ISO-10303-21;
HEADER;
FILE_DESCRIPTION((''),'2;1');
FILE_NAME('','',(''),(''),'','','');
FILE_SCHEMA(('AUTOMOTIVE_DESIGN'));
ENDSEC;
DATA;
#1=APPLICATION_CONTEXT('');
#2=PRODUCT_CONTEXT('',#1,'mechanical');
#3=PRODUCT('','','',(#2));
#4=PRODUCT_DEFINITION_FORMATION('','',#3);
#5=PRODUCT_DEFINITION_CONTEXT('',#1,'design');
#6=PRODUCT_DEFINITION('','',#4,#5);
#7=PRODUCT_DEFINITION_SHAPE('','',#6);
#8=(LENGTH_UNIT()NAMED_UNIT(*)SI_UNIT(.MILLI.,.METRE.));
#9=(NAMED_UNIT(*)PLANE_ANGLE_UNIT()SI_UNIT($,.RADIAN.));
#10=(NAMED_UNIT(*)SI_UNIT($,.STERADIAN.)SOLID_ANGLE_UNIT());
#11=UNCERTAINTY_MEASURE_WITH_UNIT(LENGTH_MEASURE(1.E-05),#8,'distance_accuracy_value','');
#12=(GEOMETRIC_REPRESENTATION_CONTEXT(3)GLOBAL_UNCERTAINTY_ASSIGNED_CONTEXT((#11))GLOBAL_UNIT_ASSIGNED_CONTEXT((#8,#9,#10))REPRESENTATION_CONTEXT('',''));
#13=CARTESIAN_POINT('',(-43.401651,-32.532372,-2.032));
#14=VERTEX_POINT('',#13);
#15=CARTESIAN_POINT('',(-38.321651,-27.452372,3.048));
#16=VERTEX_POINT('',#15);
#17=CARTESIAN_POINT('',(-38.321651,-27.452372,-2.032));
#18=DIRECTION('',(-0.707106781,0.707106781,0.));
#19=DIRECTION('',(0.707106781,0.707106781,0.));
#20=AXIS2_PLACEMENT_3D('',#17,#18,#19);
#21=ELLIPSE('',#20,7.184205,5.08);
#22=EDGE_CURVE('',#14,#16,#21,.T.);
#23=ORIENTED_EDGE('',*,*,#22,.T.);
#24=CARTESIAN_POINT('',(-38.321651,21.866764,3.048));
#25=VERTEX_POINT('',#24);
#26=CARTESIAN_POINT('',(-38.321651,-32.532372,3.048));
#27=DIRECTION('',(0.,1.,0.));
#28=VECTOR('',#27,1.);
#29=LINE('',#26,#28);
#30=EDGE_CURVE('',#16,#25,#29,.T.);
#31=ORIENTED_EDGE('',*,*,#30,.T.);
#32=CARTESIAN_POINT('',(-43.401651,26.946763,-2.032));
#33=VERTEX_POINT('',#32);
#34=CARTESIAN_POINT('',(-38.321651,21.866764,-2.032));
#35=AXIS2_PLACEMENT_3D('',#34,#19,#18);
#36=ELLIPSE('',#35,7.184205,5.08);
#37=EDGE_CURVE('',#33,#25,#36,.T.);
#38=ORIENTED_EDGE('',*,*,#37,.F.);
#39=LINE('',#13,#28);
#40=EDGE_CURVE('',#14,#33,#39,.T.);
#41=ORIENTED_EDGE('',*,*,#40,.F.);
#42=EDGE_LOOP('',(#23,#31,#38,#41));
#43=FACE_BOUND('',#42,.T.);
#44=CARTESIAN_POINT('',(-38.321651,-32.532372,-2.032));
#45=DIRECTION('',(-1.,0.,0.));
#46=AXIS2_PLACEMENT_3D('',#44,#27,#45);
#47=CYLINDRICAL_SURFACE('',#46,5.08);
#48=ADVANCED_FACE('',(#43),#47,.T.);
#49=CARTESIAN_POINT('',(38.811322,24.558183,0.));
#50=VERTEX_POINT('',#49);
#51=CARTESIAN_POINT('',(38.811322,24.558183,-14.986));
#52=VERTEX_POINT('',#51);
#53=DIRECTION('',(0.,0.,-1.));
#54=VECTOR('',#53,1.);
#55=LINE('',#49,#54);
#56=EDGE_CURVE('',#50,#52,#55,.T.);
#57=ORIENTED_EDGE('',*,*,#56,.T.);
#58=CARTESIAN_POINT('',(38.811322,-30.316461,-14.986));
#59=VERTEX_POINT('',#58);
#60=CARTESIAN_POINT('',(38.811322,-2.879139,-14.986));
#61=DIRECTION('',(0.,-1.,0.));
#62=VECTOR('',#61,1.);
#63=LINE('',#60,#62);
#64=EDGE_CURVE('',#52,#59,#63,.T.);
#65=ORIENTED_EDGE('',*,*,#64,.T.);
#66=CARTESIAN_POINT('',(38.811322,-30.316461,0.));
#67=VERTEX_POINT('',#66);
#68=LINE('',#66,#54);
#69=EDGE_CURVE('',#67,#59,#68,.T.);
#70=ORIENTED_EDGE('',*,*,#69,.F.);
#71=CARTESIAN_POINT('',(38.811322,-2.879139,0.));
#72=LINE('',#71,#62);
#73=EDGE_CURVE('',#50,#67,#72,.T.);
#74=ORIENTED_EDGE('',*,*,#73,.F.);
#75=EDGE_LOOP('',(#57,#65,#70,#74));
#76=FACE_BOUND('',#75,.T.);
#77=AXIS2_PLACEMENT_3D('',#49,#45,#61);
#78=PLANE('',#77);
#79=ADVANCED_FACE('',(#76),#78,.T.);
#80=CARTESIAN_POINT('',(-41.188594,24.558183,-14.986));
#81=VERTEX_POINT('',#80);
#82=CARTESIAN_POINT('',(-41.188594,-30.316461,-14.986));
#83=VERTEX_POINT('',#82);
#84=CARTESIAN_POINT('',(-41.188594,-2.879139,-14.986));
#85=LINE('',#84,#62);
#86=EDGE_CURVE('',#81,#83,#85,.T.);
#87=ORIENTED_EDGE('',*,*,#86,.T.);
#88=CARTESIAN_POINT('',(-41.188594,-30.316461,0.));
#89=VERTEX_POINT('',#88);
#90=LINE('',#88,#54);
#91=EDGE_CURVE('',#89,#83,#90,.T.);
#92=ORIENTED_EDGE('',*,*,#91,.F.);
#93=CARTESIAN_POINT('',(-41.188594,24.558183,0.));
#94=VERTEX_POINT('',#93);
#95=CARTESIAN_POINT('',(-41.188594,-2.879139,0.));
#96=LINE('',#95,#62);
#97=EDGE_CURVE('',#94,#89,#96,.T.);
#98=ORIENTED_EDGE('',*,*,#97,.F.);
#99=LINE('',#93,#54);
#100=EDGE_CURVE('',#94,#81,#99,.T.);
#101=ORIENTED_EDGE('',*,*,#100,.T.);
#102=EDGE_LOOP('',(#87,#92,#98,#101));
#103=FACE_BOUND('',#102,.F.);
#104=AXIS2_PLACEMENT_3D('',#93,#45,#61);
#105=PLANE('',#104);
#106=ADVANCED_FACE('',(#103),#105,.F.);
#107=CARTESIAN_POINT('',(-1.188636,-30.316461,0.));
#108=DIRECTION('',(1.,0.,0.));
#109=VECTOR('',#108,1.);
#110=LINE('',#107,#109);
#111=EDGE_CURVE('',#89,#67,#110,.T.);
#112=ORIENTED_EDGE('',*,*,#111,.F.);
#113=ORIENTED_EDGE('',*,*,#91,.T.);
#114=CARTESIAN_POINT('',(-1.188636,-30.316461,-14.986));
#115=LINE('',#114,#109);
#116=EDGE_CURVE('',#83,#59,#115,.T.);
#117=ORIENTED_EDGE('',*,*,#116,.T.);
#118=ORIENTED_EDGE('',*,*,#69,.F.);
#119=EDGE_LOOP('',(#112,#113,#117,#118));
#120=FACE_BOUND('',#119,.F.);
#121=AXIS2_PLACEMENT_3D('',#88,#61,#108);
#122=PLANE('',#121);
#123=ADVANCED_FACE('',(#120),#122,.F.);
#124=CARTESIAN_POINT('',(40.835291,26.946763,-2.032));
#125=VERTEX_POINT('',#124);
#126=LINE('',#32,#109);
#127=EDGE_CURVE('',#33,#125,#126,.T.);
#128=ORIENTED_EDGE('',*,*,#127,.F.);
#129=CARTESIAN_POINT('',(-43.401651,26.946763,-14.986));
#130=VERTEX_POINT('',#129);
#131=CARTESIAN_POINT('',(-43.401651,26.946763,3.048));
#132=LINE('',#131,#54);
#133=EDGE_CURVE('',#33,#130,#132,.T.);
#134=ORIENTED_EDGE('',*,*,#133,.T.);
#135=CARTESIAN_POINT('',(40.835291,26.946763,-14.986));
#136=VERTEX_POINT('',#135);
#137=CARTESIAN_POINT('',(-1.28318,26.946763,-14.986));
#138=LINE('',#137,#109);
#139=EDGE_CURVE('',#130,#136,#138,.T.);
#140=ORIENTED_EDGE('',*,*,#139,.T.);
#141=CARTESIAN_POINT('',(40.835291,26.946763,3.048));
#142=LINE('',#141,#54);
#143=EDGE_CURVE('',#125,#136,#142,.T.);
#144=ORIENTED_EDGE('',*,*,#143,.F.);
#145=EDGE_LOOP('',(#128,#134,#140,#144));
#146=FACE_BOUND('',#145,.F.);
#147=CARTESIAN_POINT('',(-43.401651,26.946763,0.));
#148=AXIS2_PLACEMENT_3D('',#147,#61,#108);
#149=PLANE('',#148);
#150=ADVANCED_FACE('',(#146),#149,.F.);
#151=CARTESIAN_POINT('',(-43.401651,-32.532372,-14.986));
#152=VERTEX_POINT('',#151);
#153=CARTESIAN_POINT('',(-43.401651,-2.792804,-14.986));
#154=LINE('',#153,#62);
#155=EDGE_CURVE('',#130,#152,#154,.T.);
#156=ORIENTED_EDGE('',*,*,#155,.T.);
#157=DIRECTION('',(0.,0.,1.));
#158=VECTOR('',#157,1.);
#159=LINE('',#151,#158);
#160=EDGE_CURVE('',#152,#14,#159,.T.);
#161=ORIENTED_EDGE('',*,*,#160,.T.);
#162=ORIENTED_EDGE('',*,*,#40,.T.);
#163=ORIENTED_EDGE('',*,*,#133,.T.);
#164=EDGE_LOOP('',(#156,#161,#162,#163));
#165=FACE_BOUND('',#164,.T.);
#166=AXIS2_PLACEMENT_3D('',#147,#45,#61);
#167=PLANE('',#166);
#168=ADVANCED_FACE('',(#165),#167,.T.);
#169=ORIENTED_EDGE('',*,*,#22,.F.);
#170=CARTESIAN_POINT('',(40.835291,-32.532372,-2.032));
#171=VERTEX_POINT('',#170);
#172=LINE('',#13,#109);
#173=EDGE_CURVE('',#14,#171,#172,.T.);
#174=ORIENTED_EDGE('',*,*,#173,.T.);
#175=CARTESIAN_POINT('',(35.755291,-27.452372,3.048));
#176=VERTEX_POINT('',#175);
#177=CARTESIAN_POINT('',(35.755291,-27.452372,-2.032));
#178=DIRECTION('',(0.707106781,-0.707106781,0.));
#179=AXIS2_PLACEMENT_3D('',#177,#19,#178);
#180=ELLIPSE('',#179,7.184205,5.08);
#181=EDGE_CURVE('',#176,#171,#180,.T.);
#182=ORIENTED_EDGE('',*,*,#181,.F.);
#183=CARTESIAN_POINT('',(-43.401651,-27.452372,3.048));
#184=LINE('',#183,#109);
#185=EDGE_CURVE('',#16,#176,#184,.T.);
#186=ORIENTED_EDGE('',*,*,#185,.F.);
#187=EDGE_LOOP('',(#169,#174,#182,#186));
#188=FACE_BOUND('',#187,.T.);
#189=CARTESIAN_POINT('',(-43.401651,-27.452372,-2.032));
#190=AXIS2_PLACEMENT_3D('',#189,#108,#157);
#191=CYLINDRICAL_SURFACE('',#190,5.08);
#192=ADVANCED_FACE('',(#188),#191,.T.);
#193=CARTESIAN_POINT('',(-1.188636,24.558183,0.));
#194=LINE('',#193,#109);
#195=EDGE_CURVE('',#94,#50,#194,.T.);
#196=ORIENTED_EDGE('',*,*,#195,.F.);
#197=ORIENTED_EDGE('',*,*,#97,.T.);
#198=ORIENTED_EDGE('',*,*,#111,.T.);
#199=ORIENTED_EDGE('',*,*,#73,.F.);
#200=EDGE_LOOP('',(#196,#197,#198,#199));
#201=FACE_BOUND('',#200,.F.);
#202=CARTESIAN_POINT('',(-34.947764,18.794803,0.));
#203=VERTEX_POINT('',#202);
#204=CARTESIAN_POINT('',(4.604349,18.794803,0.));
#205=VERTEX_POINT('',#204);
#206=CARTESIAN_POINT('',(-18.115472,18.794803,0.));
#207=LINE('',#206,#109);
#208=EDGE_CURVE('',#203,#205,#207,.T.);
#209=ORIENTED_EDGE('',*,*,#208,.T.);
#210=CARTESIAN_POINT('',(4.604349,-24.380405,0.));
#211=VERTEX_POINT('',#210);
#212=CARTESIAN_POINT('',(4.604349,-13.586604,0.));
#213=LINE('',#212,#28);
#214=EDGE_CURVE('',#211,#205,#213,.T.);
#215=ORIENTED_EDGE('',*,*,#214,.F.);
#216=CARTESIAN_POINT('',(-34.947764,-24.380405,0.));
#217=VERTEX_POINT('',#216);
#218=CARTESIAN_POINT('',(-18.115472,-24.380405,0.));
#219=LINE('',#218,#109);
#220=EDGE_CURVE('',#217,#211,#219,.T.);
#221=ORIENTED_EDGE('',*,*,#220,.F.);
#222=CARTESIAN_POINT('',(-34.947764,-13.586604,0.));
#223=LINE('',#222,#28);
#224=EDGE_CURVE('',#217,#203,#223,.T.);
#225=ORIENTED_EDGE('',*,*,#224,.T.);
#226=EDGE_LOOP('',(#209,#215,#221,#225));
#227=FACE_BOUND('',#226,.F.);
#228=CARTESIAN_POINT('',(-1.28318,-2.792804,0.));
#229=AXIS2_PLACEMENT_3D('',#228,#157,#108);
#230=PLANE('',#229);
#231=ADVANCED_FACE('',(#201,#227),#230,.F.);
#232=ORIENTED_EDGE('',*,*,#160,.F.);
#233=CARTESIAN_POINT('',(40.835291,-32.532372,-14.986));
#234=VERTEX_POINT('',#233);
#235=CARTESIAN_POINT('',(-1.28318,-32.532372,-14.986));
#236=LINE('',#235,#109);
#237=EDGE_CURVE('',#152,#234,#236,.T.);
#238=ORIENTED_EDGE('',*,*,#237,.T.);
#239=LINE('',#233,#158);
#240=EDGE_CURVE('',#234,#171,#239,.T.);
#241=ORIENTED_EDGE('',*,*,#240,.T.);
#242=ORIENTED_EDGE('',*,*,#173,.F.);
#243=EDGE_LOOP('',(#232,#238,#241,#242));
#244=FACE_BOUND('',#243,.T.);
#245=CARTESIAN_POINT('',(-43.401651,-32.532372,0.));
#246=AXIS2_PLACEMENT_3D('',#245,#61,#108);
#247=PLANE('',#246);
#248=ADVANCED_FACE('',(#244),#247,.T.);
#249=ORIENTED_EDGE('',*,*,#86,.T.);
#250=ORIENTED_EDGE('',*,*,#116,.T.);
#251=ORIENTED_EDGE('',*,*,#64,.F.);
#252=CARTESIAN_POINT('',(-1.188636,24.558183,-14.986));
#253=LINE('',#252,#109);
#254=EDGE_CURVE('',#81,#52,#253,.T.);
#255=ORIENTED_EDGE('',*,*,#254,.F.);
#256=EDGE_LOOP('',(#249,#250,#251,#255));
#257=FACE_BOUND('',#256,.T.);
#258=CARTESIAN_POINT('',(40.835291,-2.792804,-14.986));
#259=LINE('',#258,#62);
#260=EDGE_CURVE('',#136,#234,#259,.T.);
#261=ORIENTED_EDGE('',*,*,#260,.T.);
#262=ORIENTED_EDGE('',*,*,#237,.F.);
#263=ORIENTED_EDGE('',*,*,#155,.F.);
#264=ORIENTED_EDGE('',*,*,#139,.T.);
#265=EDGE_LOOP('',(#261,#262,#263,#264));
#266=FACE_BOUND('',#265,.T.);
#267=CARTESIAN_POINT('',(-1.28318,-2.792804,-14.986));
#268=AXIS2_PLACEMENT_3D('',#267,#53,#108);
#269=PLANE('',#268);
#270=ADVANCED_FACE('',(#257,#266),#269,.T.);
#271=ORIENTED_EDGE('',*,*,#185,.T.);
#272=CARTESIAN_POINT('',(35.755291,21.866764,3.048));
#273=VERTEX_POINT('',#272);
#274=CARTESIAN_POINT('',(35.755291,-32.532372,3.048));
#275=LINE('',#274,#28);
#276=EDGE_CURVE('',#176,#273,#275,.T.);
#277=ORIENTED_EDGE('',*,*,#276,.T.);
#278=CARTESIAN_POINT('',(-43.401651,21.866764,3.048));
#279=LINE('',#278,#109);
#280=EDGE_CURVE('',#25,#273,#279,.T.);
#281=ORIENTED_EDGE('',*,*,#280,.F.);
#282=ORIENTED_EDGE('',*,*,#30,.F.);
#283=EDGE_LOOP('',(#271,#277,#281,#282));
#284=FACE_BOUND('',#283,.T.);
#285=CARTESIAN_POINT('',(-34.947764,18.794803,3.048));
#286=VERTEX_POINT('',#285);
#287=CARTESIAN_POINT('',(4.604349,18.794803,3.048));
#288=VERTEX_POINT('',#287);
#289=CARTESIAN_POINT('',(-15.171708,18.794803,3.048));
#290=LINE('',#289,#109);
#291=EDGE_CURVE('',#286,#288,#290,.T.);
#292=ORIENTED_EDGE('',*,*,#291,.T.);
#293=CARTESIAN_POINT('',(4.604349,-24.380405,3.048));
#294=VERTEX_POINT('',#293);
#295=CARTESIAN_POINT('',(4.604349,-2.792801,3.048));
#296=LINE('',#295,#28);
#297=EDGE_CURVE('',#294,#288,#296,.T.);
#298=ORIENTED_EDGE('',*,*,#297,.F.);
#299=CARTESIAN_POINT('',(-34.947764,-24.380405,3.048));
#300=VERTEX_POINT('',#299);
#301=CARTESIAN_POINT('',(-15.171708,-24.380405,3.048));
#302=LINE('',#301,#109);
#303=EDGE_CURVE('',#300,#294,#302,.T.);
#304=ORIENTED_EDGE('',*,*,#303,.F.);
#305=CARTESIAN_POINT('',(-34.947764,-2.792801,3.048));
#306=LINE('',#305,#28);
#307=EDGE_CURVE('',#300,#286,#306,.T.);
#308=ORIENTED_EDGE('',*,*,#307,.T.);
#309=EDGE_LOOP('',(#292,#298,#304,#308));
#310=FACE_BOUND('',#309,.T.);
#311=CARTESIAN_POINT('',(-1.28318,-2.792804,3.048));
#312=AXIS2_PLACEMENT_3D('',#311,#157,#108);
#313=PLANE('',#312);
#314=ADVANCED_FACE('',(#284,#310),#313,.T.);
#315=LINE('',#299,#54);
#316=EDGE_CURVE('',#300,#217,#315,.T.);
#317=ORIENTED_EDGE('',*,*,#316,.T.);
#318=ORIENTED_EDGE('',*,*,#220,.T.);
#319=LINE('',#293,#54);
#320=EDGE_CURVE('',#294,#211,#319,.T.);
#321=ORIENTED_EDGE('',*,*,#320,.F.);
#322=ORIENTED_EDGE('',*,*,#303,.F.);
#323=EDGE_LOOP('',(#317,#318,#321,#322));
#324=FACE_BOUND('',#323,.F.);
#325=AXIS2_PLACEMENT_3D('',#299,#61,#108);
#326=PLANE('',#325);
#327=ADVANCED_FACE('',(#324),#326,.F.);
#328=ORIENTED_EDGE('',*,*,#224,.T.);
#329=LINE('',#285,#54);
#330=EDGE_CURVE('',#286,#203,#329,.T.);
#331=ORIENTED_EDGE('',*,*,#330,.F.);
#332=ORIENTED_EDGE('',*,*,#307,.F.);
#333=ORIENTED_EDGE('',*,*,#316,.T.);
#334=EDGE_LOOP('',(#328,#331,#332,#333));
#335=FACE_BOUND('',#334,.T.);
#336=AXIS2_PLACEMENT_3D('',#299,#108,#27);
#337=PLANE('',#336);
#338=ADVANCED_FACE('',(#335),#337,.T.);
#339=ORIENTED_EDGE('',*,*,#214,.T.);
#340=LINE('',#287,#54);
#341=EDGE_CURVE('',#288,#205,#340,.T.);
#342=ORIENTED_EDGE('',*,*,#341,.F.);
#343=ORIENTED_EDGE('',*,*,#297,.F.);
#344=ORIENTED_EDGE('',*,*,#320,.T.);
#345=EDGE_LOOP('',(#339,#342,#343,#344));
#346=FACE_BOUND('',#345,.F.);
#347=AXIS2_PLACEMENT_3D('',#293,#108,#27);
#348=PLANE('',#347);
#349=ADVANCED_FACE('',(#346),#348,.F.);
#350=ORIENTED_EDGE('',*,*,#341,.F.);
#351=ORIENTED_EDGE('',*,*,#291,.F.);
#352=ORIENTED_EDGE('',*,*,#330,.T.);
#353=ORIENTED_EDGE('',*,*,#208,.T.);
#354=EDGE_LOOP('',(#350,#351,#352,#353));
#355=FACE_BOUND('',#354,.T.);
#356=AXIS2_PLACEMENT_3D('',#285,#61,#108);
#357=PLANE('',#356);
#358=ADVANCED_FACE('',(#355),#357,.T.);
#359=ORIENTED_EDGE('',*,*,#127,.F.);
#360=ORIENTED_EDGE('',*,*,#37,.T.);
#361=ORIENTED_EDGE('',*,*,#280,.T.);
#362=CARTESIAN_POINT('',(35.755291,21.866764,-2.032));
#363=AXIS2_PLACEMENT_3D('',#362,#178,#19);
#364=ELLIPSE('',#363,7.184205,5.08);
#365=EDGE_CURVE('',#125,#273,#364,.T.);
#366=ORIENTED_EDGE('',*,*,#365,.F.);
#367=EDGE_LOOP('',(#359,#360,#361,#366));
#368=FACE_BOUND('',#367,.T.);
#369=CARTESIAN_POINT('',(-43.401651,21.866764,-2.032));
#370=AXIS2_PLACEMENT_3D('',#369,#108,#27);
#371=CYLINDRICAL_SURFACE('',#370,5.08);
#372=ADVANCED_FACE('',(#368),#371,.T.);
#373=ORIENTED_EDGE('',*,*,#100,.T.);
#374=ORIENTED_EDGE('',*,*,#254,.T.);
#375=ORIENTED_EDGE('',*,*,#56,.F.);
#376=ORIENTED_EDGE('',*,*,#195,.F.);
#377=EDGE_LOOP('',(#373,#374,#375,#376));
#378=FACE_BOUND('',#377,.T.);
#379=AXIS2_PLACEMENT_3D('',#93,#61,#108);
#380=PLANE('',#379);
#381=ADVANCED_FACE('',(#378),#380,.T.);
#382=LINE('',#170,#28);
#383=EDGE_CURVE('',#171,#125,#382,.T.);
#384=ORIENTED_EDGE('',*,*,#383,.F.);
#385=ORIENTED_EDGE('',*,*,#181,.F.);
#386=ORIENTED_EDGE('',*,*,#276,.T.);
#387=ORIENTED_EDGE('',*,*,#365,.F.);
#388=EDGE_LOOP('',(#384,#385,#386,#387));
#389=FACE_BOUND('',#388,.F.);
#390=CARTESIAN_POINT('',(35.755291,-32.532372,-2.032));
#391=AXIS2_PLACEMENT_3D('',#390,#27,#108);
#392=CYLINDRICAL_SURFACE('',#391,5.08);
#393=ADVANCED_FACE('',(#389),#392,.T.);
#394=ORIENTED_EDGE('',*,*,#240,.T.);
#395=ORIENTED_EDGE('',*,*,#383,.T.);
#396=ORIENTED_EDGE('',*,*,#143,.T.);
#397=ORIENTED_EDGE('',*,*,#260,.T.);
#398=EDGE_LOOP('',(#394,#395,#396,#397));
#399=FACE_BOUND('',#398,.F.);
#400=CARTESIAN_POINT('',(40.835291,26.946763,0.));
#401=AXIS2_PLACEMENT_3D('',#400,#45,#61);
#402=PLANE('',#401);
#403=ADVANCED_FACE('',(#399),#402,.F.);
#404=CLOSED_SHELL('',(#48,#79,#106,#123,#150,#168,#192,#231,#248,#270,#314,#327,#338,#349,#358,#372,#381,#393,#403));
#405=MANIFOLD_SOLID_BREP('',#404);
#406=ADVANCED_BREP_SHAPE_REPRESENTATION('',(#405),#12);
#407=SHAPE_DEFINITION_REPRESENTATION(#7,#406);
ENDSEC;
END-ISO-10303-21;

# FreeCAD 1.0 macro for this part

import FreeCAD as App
import Part
import Sketcher
from FreeCAD import Vector
Q = App.Units.Quantity


def edges_at(feature, points):
    """Names of the edges that pass closest to the given points."""
    edges = feature.Shape.Edges
    near = lambda p: min(range(len(edges)), key=lambda i: edges[i].distToShape(Part.Vertex(*p))[0])
    return sorted({f"Edge{near(p) + 1}" for p in points})


def add_polygon(sketch, points):
    """Adds a closed chain of lines whose ends are joined by coincident constraints."""
    first, n = sketch.GeometryCount, len(points)
    for a, b in zip(points, points[1:] + points[:1]):
        sketch.addGeometry(Part.LineSegment(App.Vector(*a, 0), App.Vector(*b, 0)), False)
    for i in range(n):
        sketch.addConstraint(Sketcher.Constraint("Coincident", first + i, 2, first + (i + 1) % n, 1))

doc = App.newDocument("Part")
body = doc.addObject("PartDesign::Body", "Body")

# Sketch on XY plane
sketch1 = body.newObject("Sketcher::SketchObject", "Sketch")
sketch1.AttachmentSupport = (doc.getObject("XY_Plane"), [""])
sketch1.MapMode = "FlatFace"
add_polygon(sketch1, [(-43, 27), (-43, -33), (41, -33), (41, 27)])  # lines 0-3
sketch1.addConstraint([
    Sketcher.Constraint("Vertical", 0),
    Sketcher.Constraint("Horizontal", 1),
    Sketcher.Constraint("Vertical", 2),
    Sketcher.Constraint("Horizontal", 3),
    Sketcher.Constraint("DistanceX", 1, 1, 1, 2, Q("84.236942 mm")),
    Sketcher.Constraint("DistanceY", 0, 2, 0, 1, Q("59.479135 mm")),
    Sketcher.Constraint("DistanceX", 0, 2, -1, 1, Q("43.401651 mm")),
    Sketcher.Constraint("DistanceY", 0, 2, -1, 1, Q("32.532372 mm")),
])
pad1 = body.newObject("PartDesign::Pad", "Pad")
pad1.Profile = sketch1
pad1.Length = Q("0.12 in")

# Sketch on XY plane
sketch2 = body.newObject("Sketcher::SketchObject", "Sketch001")
sketch2.AttachmentSupport = (doc.getObject("XY_Plane"), [""])
sketch2.MapMode = "FlatFace"
add_polygon(sketch2, [(-43, -33), (-43, 27), (41, 27), (41, -33)])  # lines 0-3
add_polygon(sketch2, [(39, 25), (-41, 25), (-41, -30), (39, -30)])  # lines 4-7
sketch2.addConstraint([
    Sketcher.Constraint("Vertical", 0),
    Sketcher.Constraint("Horizontal", 1),
    Sketcher.Constraint("Vertical", 2),
    Sketcher.Constraint("Horizontal", 3),
    Sketcher.Constraint("Horizontal", 4),
    Sketcher.Constraint("Vertical", 5),
    Sketcher.Constraint("Horizontal", 6),
    Sketcher.Constraint("Vertical", 7),
    Sketcher.Constraint("DistanceX", 1, 1, 1, 2, Q("84.236942 mm")),
    Sketcher.Constraint("DistanceX", 4, 2, 4, 1, Q("79.999916 mm")),
    Sketcher.Constraint("DistanceY", 0, 1, 0, 2, Q("59.479135 mm")),
    Sketcher.Constraint("DistanceY", 5, 2, 5, 1, Q("54.874644 mm")),
    Sketcher.Constraint("DistanceX", 0, 2, -1, 1, Q("43.401651 mm")),
    Sketcher.Constraint("DistanceY", 2, 2, -1, 1, Q("32.532372 mm")),
    Sketcher.Constraint("DistanceY", 5, 2, -1, 1, Q("30.316461 mm")),
    Sketcher.Constraint("DistanceX", -1, 1, 6, 2, Q("38.811322 mm")),
])
pad2 = body.newObject("PartDesign::Pad", "Pad001")
pad2.Profile = sketch2
pad2.Length = Q("0.59 in")
pad2.Reversed = True
doc.recompute()

fillet = body.newObject("PartDesign::Fillet", "Fillet")
fillet.Base = (pad2, edges_at(pad2, [
    (-43.402, -2.793, 3.048),
    (-1.283, -32.532, 3.048),
    (40.835, -2.793, 3.048),
    (-1.283, 26.947, 3.048),
]))
fillet.Radius = Q("0.2 in")

# Sketch on XY plane
sketch3 = body.newObject("Sketcher::SketchObject", "Sketch002")
sketch3.AttachmentSupport = (doc.getObject("XY_Plane"), [""])
sketch3.MapMode = "FlatFace"
sketch3.AttachmentOffset = App.Placement(Vector(0, 0, 0.12 * 25.4), App.Rotation())
add_polygon(sketch3, [(-35, 19), (-35, -24), (5, -24), (5, 19)])  # lines 0-3
sketch3.addConstraint([
    Sketcher.Constraint("Vertical", 0),
    Sketcher.Constraint("Horizontal", 1),
    Sketcher.Constraint("Vertical", 2),
    Sketcher.Constraint("Horizontal", 3),
    Sketcher.Constraint("DistanceX", 1, 1, 1, 2, Q("39.552113 mm")),
    Sketcher.Constraint("DistanceY", 0, 2, 0, 1, Q("43.175208 mm")),
    Sketcher.Constraint("DistanceX", -1, 1, 1, 2, Q("4.604349 mm")),
    Sketcher.Constraint("DistanceY", 0, 2, -1, 1, Q("24.380405 mm")),
])
pocket1 = body.newObject("PartDesign::Pocket", "Pocket")
pocket1.Profile = sketch3
pocket1.Length = Q("1 in")

doc.recompute()
